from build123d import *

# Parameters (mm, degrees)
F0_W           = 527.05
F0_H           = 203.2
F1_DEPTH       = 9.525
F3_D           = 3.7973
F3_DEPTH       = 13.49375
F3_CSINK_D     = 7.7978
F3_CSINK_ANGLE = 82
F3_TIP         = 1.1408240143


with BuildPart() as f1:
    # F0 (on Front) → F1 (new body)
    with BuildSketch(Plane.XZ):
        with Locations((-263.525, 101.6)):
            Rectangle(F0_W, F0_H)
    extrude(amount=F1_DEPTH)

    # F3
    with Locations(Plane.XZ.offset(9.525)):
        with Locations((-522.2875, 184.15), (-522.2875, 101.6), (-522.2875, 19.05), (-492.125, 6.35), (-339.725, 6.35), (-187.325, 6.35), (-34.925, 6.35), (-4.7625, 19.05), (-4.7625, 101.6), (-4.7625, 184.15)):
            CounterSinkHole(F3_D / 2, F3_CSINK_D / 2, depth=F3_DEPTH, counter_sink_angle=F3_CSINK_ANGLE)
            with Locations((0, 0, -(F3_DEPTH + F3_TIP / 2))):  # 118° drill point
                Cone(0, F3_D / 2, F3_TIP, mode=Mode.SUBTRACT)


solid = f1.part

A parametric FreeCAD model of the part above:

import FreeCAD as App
import Part
import Sketcher

V = App.Vector
Q = App.Units.Quantity


def add_polygon(sketch, points):
    """Adds a closed chain of lines whose ends are joined by coincident constraints."""
    first, n = sketch.GeometryCount, len(points)
    for a, b in zip(points, points[1:] + points[:1]):
        sketch.addGeometry(Part.LineSegment(App.Vector(*a, 0), App.Vector(*b, 0)), False)
    for i in range(n):
        sketch.addConstraint(Sketcher.Constraint("Coincident", first + i, 2, first + (i + 1) % n, 1))

doc = App.newDocument("Part")
body = doc.addObject("PartDesign::Body", "Body")

# Sketch on XZ plane
sketch1 = body.newObject("Sketcher::SketchObject", "Sketch")
sketch1.AttachmentSupport = (doc.getObject("XZ_Plane"), [""])
sketch1.MapMode = "FlatFace"
add_polygon(sketch1, [(-527, 203), (-527, 0), (0, 0), (0, 203)])  # lines 0-3
sketch1.addConstraint(Sketcher.Constraint("Vertical", 0))
sketch1.addConstraint(Sketcher.Constraint("Horizontal", 1))
sketch1.addConstraint(Sketcher.Constraint("Vertical", 2))
sketch1.addConstraint(Sketcher.Constraint("Horizontal", 3))
sketch1.addConstraint(Sketcher.Constraint("Coincident", 1, 2, -1, 1))
sketch1.addConstraint(Sketcher.Constraint("DistanceY", 0, 2, 0, 1, Q("8 in")))
sketch1.addConstraint(Sketcher.Constraint("DistanceX", 1, 1, 1, 2, Q("20.75 in")))
pad1 = body.newObject("PartDesign::Pad", "Pad")
pad1.Profile = sketch1
pad1.Length = Q("0.375 in")

# Sketch on XZ plane
sketch2 = body.newObject("Sketcher::SketchObject", "Sketch001")
sketch2.AttachmentSupport = (doc.getObject("XZ_Plane"), [""])
sketch2.MapMode = "FlatFace"
sketch2.AttachmentOffset = App.Placement(V(0, 0, 0.375 * 25.4), App.Rotation())
sketch2.addGeometry(Part.Circle(V(-522.3, 184.2, 0), V(0, 0, 1), 1.9), False)
sketch2.addGeometry(Part.Circle(V(-522.3, 101.6, 0), V(0, 0, 1), 1.9), False)
sketch2.addGeometry(Part.Circle(V(-522.3, 19.1, 0), V(0, 0, 1), 1.9), False)
sketch2.addGeometry(Part.Circle(V(-492.1, 6.3, 0), V(0, 0, 1), 1.9), False)
sketch2.addGeometry(Part.Circle(V(-339.7, 6.3, 0), V(0, 0, 1), 1.9), False)
sketch2.addGeometry(Part.Circle(V(-187.3, 6.3, 0), V(0, 0, 1), 1.9), False)
sketch2.addGeometry(Part.Circle(V(-34.9, 6.3, 0), V(0, 0, 1), 1.9), False)
sketch2.addGeometry(Part.Circle(V(-4.8, 19.1, 0), V(0, 0, 1), 1.9), False)
sketch2.addGeometry(Part.Circle(V(-4.8, 101.6, 0), V(0, 0, 1), 1.9), False)
sketch2.addGeometry(Part.Circle(V(-4.8, 184.2, 0), V(0, 0, 1), 1.9), False)
sketch2.addConstraint(Sketcher.Constraint("Equal", 0, 1))
sketch2.addConstraint(Sketcher.Constraint("Equal", 1, 2))
sketch2.addConstraint(Sketcher.Constraint("Equal", 2, 3))
sketch2.addConstraint(Sketcher.Constraint("Equal", 3, 4))
sketch2.addConstraint(Sketcher.Constraint("Equal", 4, 5))
sketch2.addConstraint(Sketcher.Constraint("Equal", 5, 6))
sketch2.addConstraint(Sketcher.Constraint("Equal", 6, 7))
sketch2.addConstraint(Sketcher.Constraint("Equal", 7, 8))
sketch2.addConstraint(Sketcher.Constraint("Equal", 8, 9))
sketch2.addConstraint(Sketcher.Constraint("Horizontal", 3, 3, 4, 3))
sketch2.addConstraint(Sketcher.Constraint("Horizontal", 4, 3, 5, 3))
sketch2.addConstraint(Sketcher.Constraint("Horizontal", 5, 3, 6, 3))
sketch2.addConstraint(Sketcher.Constraint("Horizontal", 2, 3, 7, 3))
sketch2.addConstraint(Sketcher.Constraint("Horizontal", 1, 3, 8, 3))
sketch2.addConstraint(Sketcher.Constraint("Horizontal", 0, 3, 9, 3))
sketch2.addConstraint(Sketcher.Constraint("Vertical", 0, 3, 1, 3))
sketch2.addConstraint(Sketcher.Constraint("Vertical", 1, 3, 2, 3))
sketch2.addConstraint(Sketcher.Constraint("Vertical", 7, 3, 8, 3))
sketch2.addConstraint(Sketcher.Constraint("Vertical", 8, 3, 9, 3))
sketch2.addConstraint(Sketcher.Constraint("DistanceY", -1, 1, 1, 3, Q("4 in")))
sketch2.addConstraint(Sketcher.Constraint("DistanceY", 3, 3, 0, 3, Q("7 in")))
sketch2.addConstraint(Sketcher.Constraint("DistanceX", 3, 3, 4, 3, Q("6 in")))
sketch2.addConstraint(Sketcher.Constraint("DistanceX", 4, 3, 5, 3, Q("6 in")))
sketch2.addConstraint(Sketcher.Constraint("DistanceX", 5, 3, 6, 3, Q("6 in")))
sketch2.addConstraint(Sketcher.Constraint("Diameter", 0, Q("0.1495 in")))
sketch2.addConstraint(Sketcher.Constraint("DistanceY", 2, 3, 0, 3, Q("6.5 in")))
sketch2.addConstraint(Sketcher.Constraint("DistanceY", -1, 1, 0, 3, Q("7.25 in")))
sketch2.addConstraint(Sketcher.Constraint("DistanceX", 0, 3, -1, 1, Q("20.5625 in")))
sketch2.addConstraint(Sketcher.Constraint("DistanceX", 3, 3, -1, 1, Q("19.375 in")))
sketch2.addConstraint(Sketcher.Constraint("DistanceX", 7, 3, -1, 1, Q("0.1875 in")))
doc.recompute()
hole = body.newObject("PartDesign::Hole", "Hole")
hole.Profile = sketch2
hole.ThreadType = "None"
hole.Diameter = Q("0.1495 in")
hole.DepthType = "Dimension"
hole.Depth = Q("0.53125 in")
hole.DrillPoint = "Angled"
hole.DrillPointAngle = 118
hole.HoleCutType = "Countersink"
hole.HoleCutDiameter = Q("0.307 in")
hole.HoleCutCountersinkAngle = 82

doc.recompute()
